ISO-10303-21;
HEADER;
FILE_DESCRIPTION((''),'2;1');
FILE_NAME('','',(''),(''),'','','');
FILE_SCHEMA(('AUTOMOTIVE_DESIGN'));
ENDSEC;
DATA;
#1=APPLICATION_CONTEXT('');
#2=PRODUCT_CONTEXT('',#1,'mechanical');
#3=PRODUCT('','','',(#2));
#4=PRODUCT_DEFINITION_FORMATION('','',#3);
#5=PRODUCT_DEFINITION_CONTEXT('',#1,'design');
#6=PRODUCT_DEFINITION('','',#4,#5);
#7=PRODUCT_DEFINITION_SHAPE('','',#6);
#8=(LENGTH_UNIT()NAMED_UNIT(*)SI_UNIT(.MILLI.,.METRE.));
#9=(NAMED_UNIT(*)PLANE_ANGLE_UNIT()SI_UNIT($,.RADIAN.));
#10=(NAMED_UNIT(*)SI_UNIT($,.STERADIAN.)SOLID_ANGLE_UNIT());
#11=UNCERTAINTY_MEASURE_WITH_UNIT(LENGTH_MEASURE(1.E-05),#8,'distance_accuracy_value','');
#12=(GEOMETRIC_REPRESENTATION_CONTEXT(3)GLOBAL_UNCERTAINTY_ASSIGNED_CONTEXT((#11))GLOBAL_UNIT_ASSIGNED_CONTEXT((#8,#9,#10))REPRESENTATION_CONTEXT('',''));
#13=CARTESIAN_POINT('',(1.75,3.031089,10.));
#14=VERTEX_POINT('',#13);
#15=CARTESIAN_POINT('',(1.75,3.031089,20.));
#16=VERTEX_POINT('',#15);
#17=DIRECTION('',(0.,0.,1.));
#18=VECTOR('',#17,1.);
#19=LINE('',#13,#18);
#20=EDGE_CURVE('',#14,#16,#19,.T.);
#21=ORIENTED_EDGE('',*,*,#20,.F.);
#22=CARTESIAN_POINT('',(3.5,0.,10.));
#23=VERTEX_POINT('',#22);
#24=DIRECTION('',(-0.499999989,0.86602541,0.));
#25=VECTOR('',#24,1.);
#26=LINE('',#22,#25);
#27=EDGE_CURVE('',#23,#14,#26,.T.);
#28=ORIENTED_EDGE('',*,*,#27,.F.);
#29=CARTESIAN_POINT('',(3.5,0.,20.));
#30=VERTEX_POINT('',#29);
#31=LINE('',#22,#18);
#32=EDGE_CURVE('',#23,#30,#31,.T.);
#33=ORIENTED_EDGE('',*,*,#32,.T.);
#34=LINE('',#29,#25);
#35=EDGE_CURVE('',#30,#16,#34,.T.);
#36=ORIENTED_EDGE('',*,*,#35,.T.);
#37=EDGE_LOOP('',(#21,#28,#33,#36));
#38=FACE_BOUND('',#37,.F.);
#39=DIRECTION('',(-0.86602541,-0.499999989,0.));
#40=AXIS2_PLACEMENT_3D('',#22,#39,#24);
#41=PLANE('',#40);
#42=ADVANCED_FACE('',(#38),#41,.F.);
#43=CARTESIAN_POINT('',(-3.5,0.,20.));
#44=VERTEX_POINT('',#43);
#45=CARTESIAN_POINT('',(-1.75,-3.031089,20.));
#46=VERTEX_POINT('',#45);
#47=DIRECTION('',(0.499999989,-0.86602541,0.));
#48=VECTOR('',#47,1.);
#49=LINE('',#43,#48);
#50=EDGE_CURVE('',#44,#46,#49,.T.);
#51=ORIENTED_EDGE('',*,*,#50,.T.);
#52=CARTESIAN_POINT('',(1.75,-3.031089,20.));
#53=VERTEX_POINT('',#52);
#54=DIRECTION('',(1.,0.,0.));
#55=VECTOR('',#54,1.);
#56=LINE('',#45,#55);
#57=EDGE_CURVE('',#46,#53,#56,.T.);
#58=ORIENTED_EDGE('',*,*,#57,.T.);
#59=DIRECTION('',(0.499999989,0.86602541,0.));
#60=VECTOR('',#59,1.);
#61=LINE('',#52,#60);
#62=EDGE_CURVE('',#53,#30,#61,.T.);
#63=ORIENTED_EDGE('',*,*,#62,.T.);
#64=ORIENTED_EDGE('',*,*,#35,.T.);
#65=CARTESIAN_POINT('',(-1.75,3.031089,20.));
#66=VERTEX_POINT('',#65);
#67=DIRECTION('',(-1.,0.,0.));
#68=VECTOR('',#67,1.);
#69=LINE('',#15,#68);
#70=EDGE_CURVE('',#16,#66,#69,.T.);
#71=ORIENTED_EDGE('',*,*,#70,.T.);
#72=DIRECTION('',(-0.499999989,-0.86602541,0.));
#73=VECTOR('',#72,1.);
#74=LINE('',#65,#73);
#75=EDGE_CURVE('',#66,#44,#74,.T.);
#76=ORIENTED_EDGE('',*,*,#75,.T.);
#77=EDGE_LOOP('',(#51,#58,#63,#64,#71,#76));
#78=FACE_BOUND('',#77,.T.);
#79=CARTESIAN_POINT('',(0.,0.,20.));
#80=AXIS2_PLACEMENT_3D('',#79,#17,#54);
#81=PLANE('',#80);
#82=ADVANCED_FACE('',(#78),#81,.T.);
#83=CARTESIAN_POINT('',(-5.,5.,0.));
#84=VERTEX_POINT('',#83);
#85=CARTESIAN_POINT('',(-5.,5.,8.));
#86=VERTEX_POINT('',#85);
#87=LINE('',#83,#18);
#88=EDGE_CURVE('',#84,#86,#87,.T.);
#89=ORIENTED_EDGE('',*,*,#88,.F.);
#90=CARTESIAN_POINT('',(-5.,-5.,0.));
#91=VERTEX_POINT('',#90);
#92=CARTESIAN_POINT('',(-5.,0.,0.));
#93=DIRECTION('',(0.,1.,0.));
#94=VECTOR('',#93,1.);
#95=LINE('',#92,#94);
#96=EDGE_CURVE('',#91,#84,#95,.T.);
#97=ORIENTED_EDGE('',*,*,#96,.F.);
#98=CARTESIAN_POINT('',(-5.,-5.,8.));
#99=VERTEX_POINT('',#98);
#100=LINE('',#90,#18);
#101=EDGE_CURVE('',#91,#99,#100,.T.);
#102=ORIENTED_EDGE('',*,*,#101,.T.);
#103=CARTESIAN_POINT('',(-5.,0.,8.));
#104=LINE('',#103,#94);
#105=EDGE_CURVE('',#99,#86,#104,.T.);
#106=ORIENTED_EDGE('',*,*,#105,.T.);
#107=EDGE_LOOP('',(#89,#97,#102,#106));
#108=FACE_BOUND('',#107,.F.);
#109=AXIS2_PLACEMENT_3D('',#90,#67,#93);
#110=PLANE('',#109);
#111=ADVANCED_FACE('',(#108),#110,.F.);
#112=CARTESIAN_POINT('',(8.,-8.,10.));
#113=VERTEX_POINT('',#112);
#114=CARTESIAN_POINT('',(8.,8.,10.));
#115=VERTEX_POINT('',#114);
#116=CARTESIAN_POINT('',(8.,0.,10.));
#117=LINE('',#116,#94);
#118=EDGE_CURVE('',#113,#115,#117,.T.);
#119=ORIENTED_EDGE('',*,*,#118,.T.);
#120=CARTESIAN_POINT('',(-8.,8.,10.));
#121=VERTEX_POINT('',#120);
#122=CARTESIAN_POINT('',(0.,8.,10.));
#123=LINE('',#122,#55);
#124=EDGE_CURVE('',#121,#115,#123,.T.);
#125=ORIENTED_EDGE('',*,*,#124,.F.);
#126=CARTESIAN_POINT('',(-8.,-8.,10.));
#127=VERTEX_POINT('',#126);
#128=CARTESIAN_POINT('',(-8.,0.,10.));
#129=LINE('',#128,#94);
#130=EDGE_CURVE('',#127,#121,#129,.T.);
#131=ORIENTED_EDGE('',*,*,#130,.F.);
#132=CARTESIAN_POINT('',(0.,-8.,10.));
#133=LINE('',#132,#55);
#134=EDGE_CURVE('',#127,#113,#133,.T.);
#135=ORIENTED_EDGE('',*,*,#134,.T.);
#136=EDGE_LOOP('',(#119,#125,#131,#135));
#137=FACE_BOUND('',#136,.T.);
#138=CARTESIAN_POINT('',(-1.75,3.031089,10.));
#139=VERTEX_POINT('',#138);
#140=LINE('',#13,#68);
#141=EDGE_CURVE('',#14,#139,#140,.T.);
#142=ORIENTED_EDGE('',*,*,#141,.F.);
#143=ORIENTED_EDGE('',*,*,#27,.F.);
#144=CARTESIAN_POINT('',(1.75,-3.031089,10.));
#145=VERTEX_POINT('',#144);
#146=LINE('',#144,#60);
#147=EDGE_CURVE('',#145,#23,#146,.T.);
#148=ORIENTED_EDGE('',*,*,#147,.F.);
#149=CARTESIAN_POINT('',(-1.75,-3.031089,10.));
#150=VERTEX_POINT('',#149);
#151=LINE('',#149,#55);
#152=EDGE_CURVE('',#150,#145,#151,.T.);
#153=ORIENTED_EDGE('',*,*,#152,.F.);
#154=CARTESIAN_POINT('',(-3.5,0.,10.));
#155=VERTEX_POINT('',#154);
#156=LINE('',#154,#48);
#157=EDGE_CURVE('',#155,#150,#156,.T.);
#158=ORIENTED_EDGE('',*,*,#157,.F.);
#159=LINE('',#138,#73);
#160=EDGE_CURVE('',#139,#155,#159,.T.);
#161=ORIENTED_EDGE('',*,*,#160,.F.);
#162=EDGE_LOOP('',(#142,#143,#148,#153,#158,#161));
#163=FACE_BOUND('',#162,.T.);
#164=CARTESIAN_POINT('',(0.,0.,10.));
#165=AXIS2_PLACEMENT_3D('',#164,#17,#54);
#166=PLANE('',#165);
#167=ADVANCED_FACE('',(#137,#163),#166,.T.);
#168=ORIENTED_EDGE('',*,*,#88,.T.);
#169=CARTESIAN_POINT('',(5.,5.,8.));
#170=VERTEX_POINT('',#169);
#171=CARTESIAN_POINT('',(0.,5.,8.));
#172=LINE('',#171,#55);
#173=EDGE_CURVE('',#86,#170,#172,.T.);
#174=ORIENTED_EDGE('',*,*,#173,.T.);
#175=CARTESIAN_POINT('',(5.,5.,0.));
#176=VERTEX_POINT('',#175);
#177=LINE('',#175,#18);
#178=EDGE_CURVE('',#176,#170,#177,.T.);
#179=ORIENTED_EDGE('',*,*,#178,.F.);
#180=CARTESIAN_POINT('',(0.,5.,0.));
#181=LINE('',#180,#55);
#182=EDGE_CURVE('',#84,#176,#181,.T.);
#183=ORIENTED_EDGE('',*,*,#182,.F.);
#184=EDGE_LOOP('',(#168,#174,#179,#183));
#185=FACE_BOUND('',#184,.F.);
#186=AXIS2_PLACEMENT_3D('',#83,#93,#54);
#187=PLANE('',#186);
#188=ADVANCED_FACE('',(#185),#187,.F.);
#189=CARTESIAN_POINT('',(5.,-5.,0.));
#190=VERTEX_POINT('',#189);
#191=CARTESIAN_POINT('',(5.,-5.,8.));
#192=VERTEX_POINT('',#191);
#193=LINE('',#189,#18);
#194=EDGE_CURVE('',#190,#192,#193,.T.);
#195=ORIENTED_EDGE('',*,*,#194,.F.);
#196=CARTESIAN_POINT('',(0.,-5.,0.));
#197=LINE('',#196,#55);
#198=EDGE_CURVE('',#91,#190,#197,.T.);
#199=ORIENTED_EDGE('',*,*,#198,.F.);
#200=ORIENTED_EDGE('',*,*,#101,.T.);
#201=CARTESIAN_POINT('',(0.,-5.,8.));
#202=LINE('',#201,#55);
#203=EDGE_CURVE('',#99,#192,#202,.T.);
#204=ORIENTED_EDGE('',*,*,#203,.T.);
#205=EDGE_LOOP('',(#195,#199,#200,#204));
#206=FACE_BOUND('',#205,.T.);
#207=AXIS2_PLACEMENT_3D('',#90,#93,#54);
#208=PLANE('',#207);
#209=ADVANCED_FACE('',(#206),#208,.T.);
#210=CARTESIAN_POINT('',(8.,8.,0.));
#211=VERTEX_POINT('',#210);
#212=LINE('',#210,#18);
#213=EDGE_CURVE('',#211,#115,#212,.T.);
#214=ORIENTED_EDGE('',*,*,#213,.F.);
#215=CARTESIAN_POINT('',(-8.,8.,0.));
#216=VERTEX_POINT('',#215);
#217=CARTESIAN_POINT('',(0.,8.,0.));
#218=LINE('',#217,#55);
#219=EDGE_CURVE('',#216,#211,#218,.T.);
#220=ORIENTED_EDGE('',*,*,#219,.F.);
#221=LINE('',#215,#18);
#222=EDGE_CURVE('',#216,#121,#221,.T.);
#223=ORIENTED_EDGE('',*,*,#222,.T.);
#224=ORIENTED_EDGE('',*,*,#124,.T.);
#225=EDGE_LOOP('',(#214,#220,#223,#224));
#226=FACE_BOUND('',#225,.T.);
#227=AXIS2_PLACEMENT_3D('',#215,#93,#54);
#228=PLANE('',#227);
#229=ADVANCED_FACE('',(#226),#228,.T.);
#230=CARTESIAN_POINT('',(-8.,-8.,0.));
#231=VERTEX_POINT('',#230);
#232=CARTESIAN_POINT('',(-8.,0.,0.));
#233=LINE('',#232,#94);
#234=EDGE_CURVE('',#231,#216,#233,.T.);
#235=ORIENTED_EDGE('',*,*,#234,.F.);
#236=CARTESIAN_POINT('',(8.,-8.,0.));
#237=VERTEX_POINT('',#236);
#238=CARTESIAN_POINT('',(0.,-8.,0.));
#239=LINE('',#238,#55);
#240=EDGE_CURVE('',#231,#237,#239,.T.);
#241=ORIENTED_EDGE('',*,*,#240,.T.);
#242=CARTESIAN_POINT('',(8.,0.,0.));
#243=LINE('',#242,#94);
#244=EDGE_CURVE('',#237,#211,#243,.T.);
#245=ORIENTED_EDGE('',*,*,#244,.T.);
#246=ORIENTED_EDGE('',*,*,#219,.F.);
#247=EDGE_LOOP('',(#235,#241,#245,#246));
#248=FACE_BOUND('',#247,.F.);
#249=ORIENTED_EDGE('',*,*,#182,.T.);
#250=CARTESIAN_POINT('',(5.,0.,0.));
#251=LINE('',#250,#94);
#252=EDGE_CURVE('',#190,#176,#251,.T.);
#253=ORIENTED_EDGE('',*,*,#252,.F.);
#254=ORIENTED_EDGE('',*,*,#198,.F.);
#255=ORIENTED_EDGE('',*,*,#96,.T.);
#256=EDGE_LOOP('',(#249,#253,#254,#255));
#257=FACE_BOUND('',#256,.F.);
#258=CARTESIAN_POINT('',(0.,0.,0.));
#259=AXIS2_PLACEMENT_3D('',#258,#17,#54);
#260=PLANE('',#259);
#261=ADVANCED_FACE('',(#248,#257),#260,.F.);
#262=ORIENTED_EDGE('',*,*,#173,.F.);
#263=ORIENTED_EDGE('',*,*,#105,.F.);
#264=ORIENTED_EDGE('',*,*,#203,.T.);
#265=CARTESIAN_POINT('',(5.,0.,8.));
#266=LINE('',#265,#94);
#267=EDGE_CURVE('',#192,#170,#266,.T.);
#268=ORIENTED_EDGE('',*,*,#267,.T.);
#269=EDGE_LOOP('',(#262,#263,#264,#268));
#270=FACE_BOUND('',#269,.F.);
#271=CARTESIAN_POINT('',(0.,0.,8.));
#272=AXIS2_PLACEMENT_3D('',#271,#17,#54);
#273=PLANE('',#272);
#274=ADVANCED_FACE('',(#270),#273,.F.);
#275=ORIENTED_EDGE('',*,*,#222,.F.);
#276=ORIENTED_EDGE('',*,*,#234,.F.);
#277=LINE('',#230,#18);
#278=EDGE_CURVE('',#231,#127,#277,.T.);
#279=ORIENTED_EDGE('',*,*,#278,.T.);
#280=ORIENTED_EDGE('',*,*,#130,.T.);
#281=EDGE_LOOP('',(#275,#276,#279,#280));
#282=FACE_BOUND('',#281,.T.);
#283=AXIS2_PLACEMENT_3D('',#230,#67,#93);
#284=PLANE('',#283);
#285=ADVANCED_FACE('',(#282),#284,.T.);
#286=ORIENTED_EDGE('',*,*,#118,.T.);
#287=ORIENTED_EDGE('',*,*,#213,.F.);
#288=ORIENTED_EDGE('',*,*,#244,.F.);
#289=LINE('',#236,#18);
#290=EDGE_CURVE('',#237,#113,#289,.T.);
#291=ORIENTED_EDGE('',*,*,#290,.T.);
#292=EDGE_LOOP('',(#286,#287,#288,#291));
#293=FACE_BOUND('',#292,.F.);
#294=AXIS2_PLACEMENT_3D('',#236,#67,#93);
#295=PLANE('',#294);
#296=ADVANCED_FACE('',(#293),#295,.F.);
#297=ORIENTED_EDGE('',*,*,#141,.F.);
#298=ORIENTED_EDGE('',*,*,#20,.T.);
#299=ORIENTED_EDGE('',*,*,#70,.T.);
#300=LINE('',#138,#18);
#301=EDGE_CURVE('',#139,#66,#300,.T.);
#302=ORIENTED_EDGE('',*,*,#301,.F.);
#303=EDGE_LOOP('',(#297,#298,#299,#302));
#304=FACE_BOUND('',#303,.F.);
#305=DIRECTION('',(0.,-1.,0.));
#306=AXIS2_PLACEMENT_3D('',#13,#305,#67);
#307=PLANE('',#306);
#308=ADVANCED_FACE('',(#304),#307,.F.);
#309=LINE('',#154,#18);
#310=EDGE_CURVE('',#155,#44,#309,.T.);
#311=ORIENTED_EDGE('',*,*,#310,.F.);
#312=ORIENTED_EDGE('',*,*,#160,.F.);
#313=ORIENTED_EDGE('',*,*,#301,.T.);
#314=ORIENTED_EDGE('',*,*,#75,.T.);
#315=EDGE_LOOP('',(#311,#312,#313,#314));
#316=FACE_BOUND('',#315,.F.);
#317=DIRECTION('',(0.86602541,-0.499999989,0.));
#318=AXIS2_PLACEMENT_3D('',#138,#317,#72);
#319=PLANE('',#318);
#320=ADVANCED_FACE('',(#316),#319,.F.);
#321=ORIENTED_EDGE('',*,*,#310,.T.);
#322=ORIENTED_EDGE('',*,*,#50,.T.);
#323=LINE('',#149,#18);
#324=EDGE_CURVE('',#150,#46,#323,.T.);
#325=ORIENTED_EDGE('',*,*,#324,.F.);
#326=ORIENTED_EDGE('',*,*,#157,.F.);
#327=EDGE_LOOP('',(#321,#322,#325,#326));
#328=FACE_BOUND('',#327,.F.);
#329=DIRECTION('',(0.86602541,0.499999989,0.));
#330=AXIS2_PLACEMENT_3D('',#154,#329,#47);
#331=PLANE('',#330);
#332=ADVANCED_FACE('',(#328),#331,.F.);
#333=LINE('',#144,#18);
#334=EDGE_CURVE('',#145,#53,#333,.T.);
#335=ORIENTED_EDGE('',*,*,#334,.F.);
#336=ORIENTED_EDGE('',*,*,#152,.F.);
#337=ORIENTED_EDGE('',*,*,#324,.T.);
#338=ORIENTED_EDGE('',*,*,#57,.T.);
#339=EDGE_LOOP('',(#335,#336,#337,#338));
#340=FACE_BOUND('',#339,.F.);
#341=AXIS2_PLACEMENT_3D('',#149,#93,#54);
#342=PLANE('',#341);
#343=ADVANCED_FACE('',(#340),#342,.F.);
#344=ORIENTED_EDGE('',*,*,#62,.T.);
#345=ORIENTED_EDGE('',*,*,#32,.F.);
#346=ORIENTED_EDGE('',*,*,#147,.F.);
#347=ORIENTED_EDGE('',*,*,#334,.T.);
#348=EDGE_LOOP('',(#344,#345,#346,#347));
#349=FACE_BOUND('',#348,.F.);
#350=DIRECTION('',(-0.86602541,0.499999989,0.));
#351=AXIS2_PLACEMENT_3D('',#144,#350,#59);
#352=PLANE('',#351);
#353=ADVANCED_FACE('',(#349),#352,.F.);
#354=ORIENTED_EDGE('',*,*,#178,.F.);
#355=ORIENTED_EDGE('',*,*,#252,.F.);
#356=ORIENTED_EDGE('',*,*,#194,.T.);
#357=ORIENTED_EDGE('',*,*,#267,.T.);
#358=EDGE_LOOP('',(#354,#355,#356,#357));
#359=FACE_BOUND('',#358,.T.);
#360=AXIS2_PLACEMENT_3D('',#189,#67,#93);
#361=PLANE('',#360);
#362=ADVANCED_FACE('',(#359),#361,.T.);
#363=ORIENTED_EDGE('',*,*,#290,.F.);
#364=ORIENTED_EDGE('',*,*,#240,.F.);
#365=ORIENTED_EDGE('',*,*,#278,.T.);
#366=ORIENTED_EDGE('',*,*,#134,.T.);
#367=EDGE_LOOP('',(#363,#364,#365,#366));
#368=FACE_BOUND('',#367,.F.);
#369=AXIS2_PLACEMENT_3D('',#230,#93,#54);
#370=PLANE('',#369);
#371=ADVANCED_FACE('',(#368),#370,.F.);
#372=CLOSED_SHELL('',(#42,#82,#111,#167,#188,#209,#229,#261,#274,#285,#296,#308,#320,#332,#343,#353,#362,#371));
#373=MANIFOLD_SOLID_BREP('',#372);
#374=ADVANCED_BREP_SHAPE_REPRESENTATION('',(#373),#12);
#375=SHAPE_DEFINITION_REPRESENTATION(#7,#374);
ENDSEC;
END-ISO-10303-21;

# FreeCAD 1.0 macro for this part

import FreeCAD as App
import Part
import Sketcher

V = App.Vector
Q = App.Units.Quantity


def add_polygon(sketch, points):
    """Adds a closed chain of lines whose ends are joined by coincident constraints."""
    first, n = sketch.GeometryCount, len(points)
    for a, b in zip(points, points[1:] + points[:1]):
        sketch.addGeometry(Part.LineSegment(App.Vector(*a, 0), App.Vector(*b, 0)), False)
    for i in range(n):
        sketch.addConstraint(Sketcher.Constraint("Coincident", first + i, 2, first + (i + 1) % n, 1))

doc = App.newDocument("Part")
body = doc.addObject("PartDesign::Body", "Body")

# Sketch on XY plane
sketch1 = body.newObject("Sketcher::SketchObject", "Sketch")
sketch1.AttachmentSupport = (doc.getObject("XY_Plane"), [""])
sketch1.MapMode = "FlatFace"
add_polygon(sketch1, [(-5, 5), (-5, -5), (5, -5), (5, 5)])  # lines 0-3
sketch1.addConstraint(Sketcher.Constraint("Vertical", 0))
sketch1.addConstraint(Sketcher.Constraint("Horizontal", 1))
sketch1.addConstraint(Sketcher.Constraint("Vertical", 2))
sketch1.addConstraint(Sketcher.Constraint("Horizontal", 3))
sketch1.addConstraint(Sketcher.Constraint("Symmetric", 0, 2, 2, 2, -1, 1))
sketch1.addConstraint(Sketcher.Constraint("Equal", 3, 0))
sketch1.addConstraint(Sketcher.Constraint("DistanceX", 1, 1, 1, 2, 10.0))
pad1 = body.newObject("PartDesign::Pad", "Pad")
pad1.Profile = sketch1
pad1.Length = 8
body2 = doc.addObject("PartDesign::Body", "Body001")

# Sketch on XY plane
sketch2 = body2.newObject("Sketcher::SketchObject", "Sketch001")
sketch2.AttachmentSupport = (doc.getObject("XY_Plane001"), [""])
sketch2.MapMode = "FlatFace"
add_polygon(sketch2, [(-3.5, 0), (-1.8, -3), (1.8, -3), (3.5, 0), (1.8, 3), (-1.8, 3)])  # lines 0-5
sketch2.addConstraint(Sketcher.Constraint("Horizontal", 1))
sketch2.addConstraint(Sketcher.Constraint("Horizontal", 4))
sketch2.addConstraint(Sketcher.Constraint("Symmetric", 0, 2, 3, 2, -1, 1))
sketch2.addConstraint(Sketcher.Constraint("Symmetric", 2, 2, 5, 2, -1, 1))
sketch2.addConstraint(Sketcher.Constraint("PointOnObject", 2, 2, -1))
sketch2.addConstraint(Sketcher.Constraint("Parallel", 2, 5))
sketch2.addConstraint(Sketcher.Constraint("Vertical", 1, 2, 3, 2))
sketch2.addConstraint(Sketcher.Constraint("Angle", 0, Q("-60.000001 deg")))
sketch2.addConstraint(Sketcher.Constraint("DistanceX", 1, 1, 1, 2, 3.5))
sketch2.addConstraint(Sketcher.Constraint("DistanceX", 5, 2, 2, 2, 7.0))
pad2 = body2.newObject("PartDesign::Pad", "Pad001")
pad2.Profile = sketch2
pad2.Length = 10
body3 = doc.addObject("PartDesign::Body", "Body002")
doc.recompute()

body2.Placement = App.Placement(V(0, 0, 10), App.Rotation(V(0, 0, 1), 0))
boolean = body3.newObject("PartDesign::Boolean", "Boolean")
boolean.Type = "Fuse"
boolean.addObjects([body2])
body4 = doc.addObject("PartDesign::Body", "Body003")

# Sketch on XY plane
sketch3 = body4.newObject("Sketcher::SketchObject", "Sketch002")
sketch3.AttachmentSupport = (doc.getObject("XY_Plane003"), [""])
sketch3.MapMode = "FlatFace"
add_polygon(sketch3, [(-8, 8), (-8, -8), (8, -8), (8, 8)])  # lines 0-3
sketch3.addConstraint(Sketcher.Constraint("Vertical", 0))
sketch3.addConstraint(Sketcher.Constraint("Horizontal", 1))
sketch3.addConstraint(Sketcher.Constraint("Vertical", 2))
sketch3.addConstraint(Sketcher.Constraint("Horizontal", 3))
sketch3.addConstraint(Sketcher.Constraint("Symmetric", 0, 2, 2, 2, -1, 1))
sketch3.addConstraint(Sketcher.Constraint("Equal", 3, 0))
sketch3.addConstraint(Sketcher.Constraint("DistanceX", 1, 1, 1, 2, 16.0))
pad3 = body4.newObject("PartDesign::Pad", "Pad002")
pad3.Profile = sketch3
pad3.Length = 10
doc.recompute()

boolean2 = body4.newObject("PartDesign::Boolean", "Boolean001")
boolean2.Type = "Fuse"
boolean2.addObjects([body3])
doc.recompute()

boolean3 = body4.newObject("PartDesign::Boolean", "Boolean002")
boolean3.Type = "Cut"
boolean3.addObjects([body])

doc.recompute()
